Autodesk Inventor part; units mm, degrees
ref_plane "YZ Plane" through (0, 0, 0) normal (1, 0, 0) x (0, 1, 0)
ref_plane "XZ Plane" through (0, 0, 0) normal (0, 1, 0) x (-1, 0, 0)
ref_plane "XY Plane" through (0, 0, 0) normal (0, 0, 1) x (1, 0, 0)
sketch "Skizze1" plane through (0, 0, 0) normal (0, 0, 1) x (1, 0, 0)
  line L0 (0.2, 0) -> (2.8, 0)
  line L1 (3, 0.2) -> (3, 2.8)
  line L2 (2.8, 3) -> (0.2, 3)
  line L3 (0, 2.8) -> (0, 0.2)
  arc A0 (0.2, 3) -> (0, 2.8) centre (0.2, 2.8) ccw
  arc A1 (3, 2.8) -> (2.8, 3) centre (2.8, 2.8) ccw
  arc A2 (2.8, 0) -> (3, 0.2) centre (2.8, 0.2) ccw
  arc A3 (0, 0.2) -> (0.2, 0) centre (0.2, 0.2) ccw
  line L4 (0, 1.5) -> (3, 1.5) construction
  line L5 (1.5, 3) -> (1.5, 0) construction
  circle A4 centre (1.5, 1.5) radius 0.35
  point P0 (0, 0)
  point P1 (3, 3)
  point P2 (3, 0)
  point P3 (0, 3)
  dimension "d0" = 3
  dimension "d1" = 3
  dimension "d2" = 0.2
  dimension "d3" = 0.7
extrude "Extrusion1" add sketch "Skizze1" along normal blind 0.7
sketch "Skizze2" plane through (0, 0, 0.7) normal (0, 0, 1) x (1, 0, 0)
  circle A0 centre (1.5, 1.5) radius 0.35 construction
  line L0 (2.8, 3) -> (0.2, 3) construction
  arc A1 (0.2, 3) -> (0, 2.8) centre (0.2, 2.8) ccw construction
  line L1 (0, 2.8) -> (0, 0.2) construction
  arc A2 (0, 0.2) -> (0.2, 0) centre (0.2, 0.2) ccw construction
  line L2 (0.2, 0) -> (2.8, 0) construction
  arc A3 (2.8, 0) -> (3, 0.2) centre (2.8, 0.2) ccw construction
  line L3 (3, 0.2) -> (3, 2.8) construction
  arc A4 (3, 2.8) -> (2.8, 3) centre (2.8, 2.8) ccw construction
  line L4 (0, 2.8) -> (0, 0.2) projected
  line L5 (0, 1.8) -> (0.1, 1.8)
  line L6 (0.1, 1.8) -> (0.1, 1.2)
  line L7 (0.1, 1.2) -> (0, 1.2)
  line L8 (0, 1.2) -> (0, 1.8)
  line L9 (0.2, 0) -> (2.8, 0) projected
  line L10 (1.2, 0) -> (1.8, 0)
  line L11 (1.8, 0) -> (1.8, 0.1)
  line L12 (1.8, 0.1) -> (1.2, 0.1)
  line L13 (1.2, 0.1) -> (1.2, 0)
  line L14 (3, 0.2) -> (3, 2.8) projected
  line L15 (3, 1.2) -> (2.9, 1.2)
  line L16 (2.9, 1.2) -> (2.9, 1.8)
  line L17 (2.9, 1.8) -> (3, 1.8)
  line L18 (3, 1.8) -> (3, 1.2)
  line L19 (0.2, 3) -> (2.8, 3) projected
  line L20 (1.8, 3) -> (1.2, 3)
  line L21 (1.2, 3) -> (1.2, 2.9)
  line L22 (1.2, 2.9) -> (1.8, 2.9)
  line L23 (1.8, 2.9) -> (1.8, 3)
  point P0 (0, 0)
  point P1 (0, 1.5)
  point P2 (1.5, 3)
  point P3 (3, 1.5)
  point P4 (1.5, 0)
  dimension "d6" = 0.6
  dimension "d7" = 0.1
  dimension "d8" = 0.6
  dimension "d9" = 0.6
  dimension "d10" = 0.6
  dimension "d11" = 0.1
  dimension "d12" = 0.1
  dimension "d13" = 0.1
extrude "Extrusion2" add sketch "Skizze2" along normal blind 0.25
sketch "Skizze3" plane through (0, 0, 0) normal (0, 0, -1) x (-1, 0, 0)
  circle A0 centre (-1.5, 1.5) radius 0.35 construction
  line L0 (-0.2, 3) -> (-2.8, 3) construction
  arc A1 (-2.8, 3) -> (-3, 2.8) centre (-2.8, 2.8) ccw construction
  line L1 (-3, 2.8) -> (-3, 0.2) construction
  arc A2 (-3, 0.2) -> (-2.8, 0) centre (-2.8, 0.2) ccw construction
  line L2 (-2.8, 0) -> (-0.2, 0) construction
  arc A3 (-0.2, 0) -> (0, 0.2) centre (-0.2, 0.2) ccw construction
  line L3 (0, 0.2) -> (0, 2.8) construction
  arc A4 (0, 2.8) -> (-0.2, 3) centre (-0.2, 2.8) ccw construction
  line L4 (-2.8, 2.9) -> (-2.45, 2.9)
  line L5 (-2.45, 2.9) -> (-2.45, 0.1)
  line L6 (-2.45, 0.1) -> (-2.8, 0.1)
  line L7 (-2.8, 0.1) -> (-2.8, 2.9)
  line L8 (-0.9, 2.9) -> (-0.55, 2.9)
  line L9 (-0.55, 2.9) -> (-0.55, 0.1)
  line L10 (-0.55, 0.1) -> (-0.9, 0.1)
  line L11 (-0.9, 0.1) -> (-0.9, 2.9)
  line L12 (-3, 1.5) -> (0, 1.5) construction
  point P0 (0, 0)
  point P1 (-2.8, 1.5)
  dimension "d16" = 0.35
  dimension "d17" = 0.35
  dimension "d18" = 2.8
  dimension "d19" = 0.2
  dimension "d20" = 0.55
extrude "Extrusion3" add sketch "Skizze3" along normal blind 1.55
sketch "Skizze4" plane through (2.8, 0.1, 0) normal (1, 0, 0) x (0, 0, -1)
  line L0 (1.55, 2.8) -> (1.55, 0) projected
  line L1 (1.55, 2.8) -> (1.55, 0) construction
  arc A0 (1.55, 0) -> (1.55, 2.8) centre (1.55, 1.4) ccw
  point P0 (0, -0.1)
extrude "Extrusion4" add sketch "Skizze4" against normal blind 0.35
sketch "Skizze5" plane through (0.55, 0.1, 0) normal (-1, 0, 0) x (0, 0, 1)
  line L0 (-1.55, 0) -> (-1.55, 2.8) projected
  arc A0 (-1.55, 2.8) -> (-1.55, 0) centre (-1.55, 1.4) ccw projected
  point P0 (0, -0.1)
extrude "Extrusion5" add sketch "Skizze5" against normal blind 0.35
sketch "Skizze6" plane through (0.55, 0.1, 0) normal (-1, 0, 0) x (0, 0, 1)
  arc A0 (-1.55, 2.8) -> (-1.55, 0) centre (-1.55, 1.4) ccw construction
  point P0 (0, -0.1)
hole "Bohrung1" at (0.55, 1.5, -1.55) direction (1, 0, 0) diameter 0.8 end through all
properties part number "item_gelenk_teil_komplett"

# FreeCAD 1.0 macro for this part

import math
import FreeCAD as App
import Part
import Sketcher
Q = App.Units.Quantity

doc = App.newDocument("Part")
body = doc.addObject("PartDesign::Body", "Body")

# Sketch on XY plane
sketch1 = body.newObject("Sketcher::SketchObject", "Sketch")
sketch1.AttachmentSupport = (doc.getObject("XY_Plane"), [""])
sketch1.MapMode = "FlatFace"
sketch1.addGeometry(Part.ArcOfCircle(Part.Circle(App.Vector(0.2, 0.2, 0), App.Vector(0, 0, 1), 0.2), math.radians(180), math.radians(270)), False)
sketch1.addGeometry(Part.LineSegment(App.Vector(0.2, 0, 0), App.Vector(2.8, 0, 0)), False)
sketch1.addGeometry(Part.ArcOfCircle(Part.Circle(App.Vector(2.8, 0.2, 0), App.Vector(0, 0, 1), 0.2), math.radians(-90), math.radians(0)), False)
sketch1.addGeometry(Part.LineSegment(App.Vector(3, 0.2, 0), App.Vector(3, 2.8, 0)), False)
sketch1.addGeometry(Part.ArcOfCircle(Part.Circle(App.Vector(2.8, 2.8, 0), App.Vector(0, 0, 1), 0.2), math.radians(0), math.radians(90)), False)
sketch1.addGeometry(Part.LineSegment(App.Vector(2.8, 3, 0), App.Vector(0.2, 3, 0)), False)
sketch1.addGeometry(Part.ArcOfCircle(Part.Circle(App.Vector(0.2, 2.8, 0), App.Vector(0, 0, 1), 0.2), math.radians(90), math.radians(180)), False)
sketch1.addGeometry(Part.LineSegment(App.Vector(0, 2.8, 0), App.Vector(0, 0.2, 0)), False)
sketch1.addGeometry(Part.Circle(App.Vector(1.5, 1.5, 0), App.Vector(0, 0, 1), 0.35), False)
sketch1.addConstraint(Sketcher.Constraint("Tangent", 0, 2, 1, 1))
sketch1.addConstraint(Sketcher.Constraint("Tangent", 1, 2, 2, 1))
sketch1.addConstraint(Sketcher.Constraint("Tangent", 2, 2, 3, 1))
sketch1.addConstraint(Sketcher.Constraint("Tangent", 3, 2, 4, 1))
sketch1.addConstraint(Sketcher.Constraint("Tangent", 4, 2, 5, 1))
sketch1.addConstraint(Sketcher.Constraint("Tangent", 5, 2, 6, 1))
sketch1.addConstraint(Sketcher.Constraint("Tangent", 6, 2, 7, 1))
sketch1.addConstraint(Sketcher.Constraint("Tangent", 7, 2, 0, 1))
sketch1.addConstraint(Sketcher.Constraint("Horizontal", 1))
sketch1.addConstraint(Sketcher.Constraint("Vertical", 3))
sketch1.addConstraint(Sketcher.Constraint("Horizontal", 5))
sketch1.addConstraint(Sketcher.Constraint("Vertical", 7))
sketch1.addConstraint(Sketcher.Constraint("Equal", 0, 2))
sketch1.addConstraint(Sketcher.Constraint("Equal", 2, 4))
sketch1.addConstraint(Sketcher.Constraint("Equal", 4, 6))
sketch1.addConstraint(Sketcher.Constraint("PointOnObject", 0, 2, -1))
sketch1.addConstraint(Sketcher.Constraint("PointOnObject", 6, 2, -2))
sketch1.addConstraint(Sketcher.Constraint("Equal", 5, 3))
sketch1.addConstraint(Sketcher.Constraint("Diameter", 8, Q("0.7 mm")))
sketch1.addConstraint(Sketcher.Constraint("Radius", 0, Q("0.2 mm")))
sketch1.addConstraint(Sketcher.Constraint("DistanceX", -1, 1, 2, 2, Q("3 mm")))
sketch1.addConstraint(Sketcher.Constraint("DistanceX", -1, 1, 8, 3, Q("1.5 mm")))
sketch1.addConstraint(Sketcher.Constraint("DistanceY", -1, 1, 8, 3, Q("1.5 mm")))
pad1 = body.newObject("PartDesign::Pad", "Pad")
pad1.Profile = sketch1
pad1.Length = 0.7

# Sketch on XY plane
sketch2 = body.newObject("Sketcher::SketchObject", "Sketch001")
sketch2.AttachmentSupport = (doc.getObject("XY_Plane"), [""])
sketch2.MapMode = "FlatFace"
sketch2.AttachmentOffset = App.Placement(App.Vector(0, 0, 0.7), App.Rotation())
sketch2.addGeometry(Part.LineSegment(App.Vector(0.1, 1.8, 0), App.Vector(0, 1.8, 0)), False)
sketch2.addGeometry(Part.LineSegment(App.Vector(0, 1.8, 0), App.Vector(0, 1.2, 0)), False)
sketch2.addGeometry(Part.LineSegment(App.Vector(0, 1.2, 0), App.Vector(0.1, 1.2, 0)), False)
sketch2.addGeometry(Part.LineSegment(App.Vector(0.1, 1.2, 0), App.Vector(0.1, 1.8, 0)), False)
sketch2.addGeometry(Part.LineSegment(App.Vector(1.2, 0.1, 0), App.Vector(1.2, 0, 0)), False)
sketch2.addGeometry(Part.LineSegment(App.Vector(1.2, 0, 0), App.Vector(1.8, 0, 0)), False)
sketch2.addGeometry(Part.LineSegment(App.Vector(1.8, 0, 0), App.Vector(1.8, 0.1, 0)), False)
sketch2.addGeometry(Part.LineSegment(App.Vector(1.8, 0.1, 0), App.Vector(1.2, 0.1, 0)), False)
sketch2.addGeometry(Part.LineSegment(App.Vector(2.9, 1.2, 0), App.Vector(3, 1.2, 0)), False)
sketch2.addGeometry(Part.LineSegment(App.Vector(3, 1.2, 0), App.Vector(3, 1.8, 0)), False)
sketch2.addGeometry(Part.LineSegment(App.Vector(3, 1.8, 0), App.Vector(2.9, 1.8, 0)), False)
sketch2.addGeometry(Part.LineSegment(App.Vector(2.9, 1.8, 0), App.Vector(2.9, 1.2, 0)), False)
sketch2.addGeometry(Part.LineSegment(App.Vector(1.8, 3, 0), App.Vector(1.2, 3, 0)), False)
sketch2.addGeometry(Part.LineSegment(App.Vector(1.2, 3, 0), App.Vector(1.2, 2.9, 0)), False)
sketch2.addGeometry(Part.LineSegment(App.Vector(1.2, 2.9, 0), App.Vector(1.8, 2.9, 0)), False)
sketch2.addGeometry(Part.LineSegment(App.Vector(1.8, 2.9, 0), App.Vector(1.8, 3, 0)), False)
sketch2.addConstraint(Sketcher.Constraint("Coincident", 0, 2, 1, 1))
sketch2.addConstraint(Sketcher.Constraint("Coincident", 1, 2, 2, 1))
sketch2.addConstraint(Sketcher.Constraint("Coincident", 2, 2, 3, 1))
sketch2.addConstraint(Sketcher.Constraint("Coincident", 3, 2, 0, 1))
sketch2.addConstraint(Sketcher.Constraint("Coincident", 4, 2, 5, 1))
sketch2.addConstraint(Sketcher.Constraint("Coincident", 5, 2, 6, 1))
sketch2.addConstraint(Sketcher.Constraint("Coincident", 6, 2, 7, 1))
sketch2.addConstraint(Sketcher.Constraint("Coincident", 7, 2, 4, 1))
sketch2.addConstraint(Sketcher.Constraint("Coincident", 8, 2, 9, 1))
sketch2.addConstraint(Sketcher.Constraint("Coincident", 9, 2, 10, 1))
sketch2.addConstraint(Sketcher.Constraint("Coincident", 10, 2, 11, 1))
sketch2.addConstraint(Sketcher.Constraint("Coincident", 11, 2, 8, 1))
sketch2.addConstraint(Sketcher.Constraint("Coincident", 12, 2, 13, 1))
sketch2.addConstraint(Sketcher.Constraint("Coincident", 13, 2, 14, 1))
sketch2.addConstraint(Sketcher.Constraint("Coincident", 14, 2, 15, 1))
sketch2.addConstraint(Sketcher.Constraint("Coincident", 15, 2, 12, 1))
sketch2.addConstraint(Sketcher.Constraint("Horizontal", 0))
sketch2.addConstraint(Sketcher.Constraint("Vertical", 1))
sketch2.addConstraint(Sketcher.Constraint("Horizontal", 2))
sketch2.addConstraint(Sketcher.Constraint("Vertical", 3))
sketch2.addConstraint(Sketcher.Constraint("Vertical", 4))
sketch2.addConstraint(Sketcher.Constraint("Horizontal", 5))
sketch2.addConstraint(Sketcher.Constraint("Vertical", 6))
sketch2.addConstraint(Sketcher.Constraint("Horizontal", 7))
sketch2.addConstraint(Sketcher.Constraint("Horizontal", 8))
sketch2.addConstraint(Sketcher.Constraint("Vertical", 9))
sketch2.addConstraint(Sketcher.Constraint("Horizontal", 10))
sketch2.addConstraint(Sketcher.Constraint("Vertical", 11))
sketch2.addConstraint(Sketcher.Constraint("Horizontal", 12))
sketch2.addConstraint(Sketcher.Constraint("Vertical", 13))
sketch2.addConstraint(Sketcher.Constraint("Horizontal", 14))
sketch2.addConstraint(Sketcher.Constraint("Vertical", 15))
sketch2.addConstraint(Sketcher.Constraint("PointOnObject", 0, 2, -2))
sketch2.addConstraint(Sketcher.Constraint("PointOnObject", 4, 2, -1))
sketch2.addConstraint(Sketcher.Constraint("Horizontal", 2, 2, 8, 2))
sketch2.addConstraint(Sketcher.Constraint("Horizontal", 3, 2, 9, 2))
sketch2.addConstraint(Sketcher.Constraint("Vertical", 7, 2, 12, 2))
sketch2.addConstraint(Sketcher.Constraint("Vertical", 6, 2, 14, 2))
sketch2.addConstraint(Sketcher.Constraint("Equal", 2, 8))
sketch2.addConstraint(Sketcher.Constraint("Equal", 14, 1))
sketch2.addConstraint(Sketcher.Constraint("Equal", 10, 4))
sketch2.addConstraint(Sketcher.Constraint("Equal", 6, 13))
sketch2.addConstraint(Sketcher.Constraint("DistanceX", 0, 2, 0, 1, Q("0.1 mm")))
sketch2.addConstraint(Sketcher.Constraint("DistanceX", 5, 1, 5, 2, Q("0.6 mm")))
sketch2.addConstraint(Sketcher.Constraint("DistanceX", -1, 1, 8, 2, Q("3 mm")))
sketch2.addConstraint(Sketcher.Constraint("DistanceY", -1, 1, 12, 2, Q("3 mm")))
sketch2.addConstraint(Sketcher.Constraint("DistanceY", -1, 1, 0, 2, Q("1.8 mm")))
sketch2.addConstraint(Sketcher.Constraint("DistanceX", -1, 1, 4, 2, Q("1.2 mm")))
pad2 = body.newObject("PartDesign::Pad", "Pad001")
pad2.Profile = sketch2
pad2.Length = 0.25

# Sketch on XY plane
sketch3 = body.newObject("Sketcher::SketchObject", "Sketch002")
sketch3.AttachmentSupport = (doc.getObject("XY_Plane"), [""])
sketch3.MapMode = "FlatFace"
sketch3.addGeometry(Part.LineSegment(App.Vector(2.45, 2.9, 0), App.Vector(2.8, 2.9, 0)), False)
sketch3.addGeometry(Part.LineSegment(App.Vector(2.8, 2.9, 0), App.Vector(2.8, 0.1, 0)), False)
sketch3.addGeometry(Part.LineSegment(App.Vector(2.8, 0.1, 0), App.Vector(2.45, 0.1, 0)), False)
sketch3.addGeometry(Part.LineSegment(App.Vector(2.45, 0.1, 0), App.Vector(2.45, 2.9, 0)), False)
sketch3.addGeometry(Part.LineSegment(App.Vector(0.55, 2.9, 0), App.Vector(0.9, 2.9, 0)), False)
sketch3.addGeometry(Part.LineSegment(App.Vector(0.9, 2.9, 0), App.Vector(0.9, 0.1, 0)), False)
sketch3.addGeometry(Part.LineSegment(App.Vector(0.9, 0.1, 0), App.Vector(0.55, 0.1, 0)), False)
sketch3.addGeometry(Part.LineSegment(App.Vector(0.55, 0.1, 0), App.Vector(0.55, 2.9, 0)), False)
sketch3.addConstraint(Sketcher.Constraint("Coincident", 0, 2, 1, 1))
sketch3.addConstraint(Sketcher.Constraint("Coincident", 1, 2, 2, 1))
sketch3.addConstraint(Sketcher.Constraint("Coincident", 2, 2, 3, 1))
sketch3.addConstraint(Sketcher.Constraint("Coincident", 3, 2, 0, 1))
sketch3.addConstraint(Sketcher.Constraint("Coincident", 4, 2, 5, 1))
sketch3.addConstraint(Sketcher.Constraint("Coincident", 5, 2, 6, 1))
sketch3.addConstraint(Sketcher.Constraint("Coincident", 6, 2, 7, 1))
sketch3.addConstraint(Sketcher.Constraint("Coincident", 7, 2, 4, 1))
sketch3.addConstraint(Sketcher.Constraint("Horizontal", 0))
sketch3.addConstraint(Sketcher.Constraint("Vertical", 1))
sketch3.addConstraint(Sketcher.Constraint("Horizontal", 2))
sketch3.addConstraint(Sketcher.Constraint("Vertical", 3))
sketch3.addConstraint(Sketcher.Constraint("Horizontal", 4))
sketch3.addConstraint(Sketcher.Constraint("Vertical", 5))
sketch3.addConstraint(Sketcher.Constraint("Horizontal", 6))
sketch3.addConstraint(Sketcher.Constraint("Vertical", 7))
sketch3.addConstraint(Sketcher.Constraint("Horizontal", 3, 2, 4, 2))
sketch3.addConstraint(Sketcher.Constraint("Horizontal", 2, 2, 5, 2))
sketch3.addConstraint(Sketcher.Constraint("Equal", 2, 4))
sketch3.addConstraint(Sketcher.Constraint("DistanceY", 1, 2, 1, 1, Q("2.8 mm")))
sketch3.addConstraint(Sketcher.Constraint("DistanceX", 0, 1, 0, 2, Q("0.35 mm")))
sketch3.addConstraint(Sketcher.Constraint("DistanceX", -1, 1, 0, 2, Q("2.8 mm")))
sketch3.addConstraint(Sketcher.Constraint("DistanceX", -1, 1, 6, 2, Q("0.55 mm")))
sketch3.addConstraint(Sketcher.Constraint("DistanceY", -1, 1, 0, 2, Q("2.9 mm")))
pad3 = body.newObject("PartDesign::Pad", "Pad002")
pad3.Profile = sketch3
pad3.Length = 1.55
pad3.Reversed = True

# Sketch on YZ plane
sketch4 = body.newObject("Sketcher::SketchObject", "Sketch003")
sketch4.AttachmentSupport = (doc.getObject("YZ_Plane"), [""])
sketch4.MapMode = "FlatFace"
sketch4.AttachmentOffset = App.Placement(App.Vector(0, 0, 2.8), App.Rotation())
sketch4.addGeometry(Part.ArcOfCircle(Part.Circle(App.Vector(1.5, -1.6, 0), App.Vector(0, 0, 1), 1.4), math.radians(180), math.radians(360)), False)
sketch4.addGeometry(Part.LineSegment(App.Vector(2.9, -1.6, 0), App.Vector(0.1, -1.6, 0)), False)
sketch4.addConstraint(Sketcher.Constraint("Coincident", 0, 1, 1, 2))
sketch4.addConstraint(Sketcher.Constraint("Coincident", 1, 1, 0, 2))
sketch4.addConstraint(Sketcher.Constraint("Horizontal", 1))
sketch4.addConstraint(Sketcher.Constraint("Radius", 0, Q("1.4 mm")))
sketch4.addConstraint(Sketcher.Constraint("DistanceX", -1, 1, 0, 3, Q("1.5 mm")))
sketch4.addConstraint(Sketcher.Constraint("DistanceY", 0, 3, -1, 1, Q("1.55 mm")))
sketch4.addConstraint(Sketcher.Constraint("DistanceY", 0, 1, -1, 1, Q("1.55 mm")))
pad4 = body.newObject("PartDesign::Pad", "Pad003")
pad4.Profile = sketch4
pad4.Length = 0.35
pad4.Reversed = True

# Sketch on YZ plane
sketch5 = body.newObject("Sketcher::SketchObject", "Sketch004")
sketch5.AttachmentSupport = (doc.getObject("YZ_Plane"), [""])
sketch5.MapMode = "FlatFace"
sketch5.AttachmentOffset = App.Placement(App.Vector(0, 0, 0.55), App.Rotation())
sketch5.addGeometry(Part.ArcOfCircle(Part.Circle(App.Vector(1.5, -1.6, 0), App.Vector(0, 0, 1), 1.4), math.radians(180), math.radians(360)), False)
sketch5.addGeometry(Part.LineSegment(App.Vector(0.1, -1.6, 0), App.Vector(2.9, -1.6, 0)), False)
sketch5.addConstraint(Sketcher.Constraint("Coincident", 0, 1, 1, 1))
sketch5.addConstraint(Sketcher.Constraint("Coincident", 1, 2, 0, 2))
sketch5.addConstraint(Sketcher.Constraint("Horizontal", 1))
sketch5.addConstraint(Sketcher.Constraint("Radius", 0, Q("1.4 mm")))
sketch5.addConstraint(Sketcher.Constraint("DistanceX", -1, 1, 0, 3, Q("1.5 mm")))
sketch5.addConstraint(Sketcher.Constraint("DistanceY", 0, 3, -1, 1, Q("1.55 mm")))
sketch5.addConstraint(Sketcher.Constraint("DistanceY", 0, 1, -1, 1, Q("1.55 mm")))
pad5 = body.newObject("PartDesign::Pad", "Pad004")
pad5.Profile = sketch5
pad5.Length = 0.35

# Sketch on YZ plane
sketch6 = body.newObject("Sketcher::SketchObject", "Sketch005")
sketch6.AttachmentSupport = (doc.getObject("YZ_Plane"), [""])
sketch6.MapMode = "FlatFace"
sketch6.AttachmentOffset = App.Placement(App.Vector(0, 0, 0.55), App.Rotation())
sketch6.addGeometry(Part.Circle(App.Vector(1.5, -1.55, 0), App.Vector(0, 0, 1), 0.4), False)
sketch6.addConstraint(Sketcher.Constraint("Diameter", 0, Q("0.8 mm")))
sketch6.addConstraint(Sketcher.Constraint("DistanceX", -1, 1, 0, 3, Q("1.5 mm")))
sketch6.addConstraint(Sketcher.Constraint("DistanceY", 0, 3, -1, 1, Q("1.55 mm")))
doc.recompute()
hole = body.newObject("PartDesign::Hole", "Hole")
hole.Profile = sketch6
hole.ThreadType = "None"
hole.Diameter = 0.8
hole.DepthType = "ThroughAll"
hole.Reversed = True

doc.recompute()
